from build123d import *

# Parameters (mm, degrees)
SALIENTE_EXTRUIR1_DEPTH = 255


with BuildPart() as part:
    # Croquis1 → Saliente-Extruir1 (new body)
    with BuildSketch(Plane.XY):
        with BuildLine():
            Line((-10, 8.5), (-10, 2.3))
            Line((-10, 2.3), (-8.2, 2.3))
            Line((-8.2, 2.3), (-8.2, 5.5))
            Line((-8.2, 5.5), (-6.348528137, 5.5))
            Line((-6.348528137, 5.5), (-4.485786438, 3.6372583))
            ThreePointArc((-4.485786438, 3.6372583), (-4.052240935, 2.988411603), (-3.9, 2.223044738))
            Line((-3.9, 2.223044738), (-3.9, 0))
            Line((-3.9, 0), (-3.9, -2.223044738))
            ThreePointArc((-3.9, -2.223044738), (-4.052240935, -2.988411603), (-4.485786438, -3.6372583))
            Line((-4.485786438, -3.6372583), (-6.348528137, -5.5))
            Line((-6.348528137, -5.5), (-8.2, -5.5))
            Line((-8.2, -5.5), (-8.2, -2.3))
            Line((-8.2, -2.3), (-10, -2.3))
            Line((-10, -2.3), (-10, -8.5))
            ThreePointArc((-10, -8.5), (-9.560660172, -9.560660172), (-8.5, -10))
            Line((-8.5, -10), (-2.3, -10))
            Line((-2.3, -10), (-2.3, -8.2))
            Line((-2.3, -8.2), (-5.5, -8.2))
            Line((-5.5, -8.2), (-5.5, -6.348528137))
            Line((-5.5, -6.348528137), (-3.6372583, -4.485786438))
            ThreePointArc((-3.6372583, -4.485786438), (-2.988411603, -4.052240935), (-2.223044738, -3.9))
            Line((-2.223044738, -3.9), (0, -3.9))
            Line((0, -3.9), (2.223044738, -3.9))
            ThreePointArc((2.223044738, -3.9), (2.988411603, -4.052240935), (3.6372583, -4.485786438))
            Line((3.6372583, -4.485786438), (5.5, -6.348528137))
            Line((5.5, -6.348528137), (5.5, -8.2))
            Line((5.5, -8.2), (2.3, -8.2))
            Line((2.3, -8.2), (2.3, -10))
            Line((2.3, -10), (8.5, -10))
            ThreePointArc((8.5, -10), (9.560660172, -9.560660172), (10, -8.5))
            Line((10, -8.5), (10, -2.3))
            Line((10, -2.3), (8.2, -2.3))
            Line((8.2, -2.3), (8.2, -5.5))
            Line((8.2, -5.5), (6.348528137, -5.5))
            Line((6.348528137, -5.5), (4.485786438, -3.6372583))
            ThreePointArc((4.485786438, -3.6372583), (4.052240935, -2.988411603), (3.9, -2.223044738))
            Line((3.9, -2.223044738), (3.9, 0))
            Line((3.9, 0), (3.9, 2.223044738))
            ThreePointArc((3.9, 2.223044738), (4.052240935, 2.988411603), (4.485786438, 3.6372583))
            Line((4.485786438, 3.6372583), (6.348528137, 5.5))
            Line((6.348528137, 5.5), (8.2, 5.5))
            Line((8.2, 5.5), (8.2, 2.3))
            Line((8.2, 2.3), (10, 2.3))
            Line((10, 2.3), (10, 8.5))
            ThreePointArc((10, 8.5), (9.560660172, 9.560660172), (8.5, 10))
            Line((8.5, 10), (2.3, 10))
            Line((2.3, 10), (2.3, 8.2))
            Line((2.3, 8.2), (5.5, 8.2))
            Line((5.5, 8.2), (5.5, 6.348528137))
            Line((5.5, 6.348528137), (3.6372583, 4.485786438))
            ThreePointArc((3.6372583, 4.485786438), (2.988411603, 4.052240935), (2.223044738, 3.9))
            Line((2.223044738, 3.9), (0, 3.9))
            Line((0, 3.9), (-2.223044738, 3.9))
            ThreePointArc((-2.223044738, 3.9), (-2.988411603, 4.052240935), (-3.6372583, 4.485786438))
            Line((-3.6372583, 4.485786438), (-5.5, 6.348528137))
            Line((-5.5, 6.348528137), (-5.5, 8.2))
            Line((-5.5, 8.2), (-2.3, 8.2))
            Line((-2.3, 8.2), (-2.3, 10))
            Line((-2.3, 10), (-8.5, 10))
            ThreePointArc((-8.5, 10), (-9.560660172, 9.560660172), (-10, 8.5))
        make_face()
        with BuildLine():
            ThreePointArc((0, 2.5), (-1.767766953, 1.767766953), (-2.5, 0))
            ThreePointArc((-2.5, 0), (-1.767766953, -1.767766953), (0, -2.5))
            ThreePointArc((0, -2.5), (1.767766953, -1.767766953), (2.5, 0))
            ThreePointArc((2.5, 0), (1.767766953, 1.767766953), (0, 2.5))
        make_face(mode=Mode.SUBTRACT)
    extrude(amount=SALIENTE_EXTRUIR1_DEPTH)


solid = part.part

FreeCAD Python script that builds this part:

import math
import FreeCAD as App
import Part
import Sketcher

V = App.Vector

doc = App.newDocument("Part")
body = doc.addObject("PartDesign::Body", "Body")

# Sketch on XY plane
sketch1 = doc.addObject("Sketcher::SketchObject", "Sketch")
body.addObject(sketch1)
sketch1.AttachmentSupport = (doc.XY_Plane, [""])
sketch1.MapMode = "FlatFace"
sketch1.addGeometry([
    Part.LineSegment(V(-10, 8.5, 0), V(-10, 2.3, 0)),  # 0
    Part.LineSegment(V(-10, 2.3, 0), V(-8.2, 2.3, 0)),  # 1
    Part.LineSegment(V(-8.2, 2.3, 0), V(-8.2, 5.5, 0)),  # 2
    Part.LineSegment(V(-8.2, 5.5, 0), V(-6.348528, 5.5, 0)),  # 3
    Part.LineSegment(V(-6.348528, 5.5, 0), V(-4.485786, 3.637258, 0)),  # 4
    Part.ArcOfCircle(Part.Circle(V(-5.9, 2.223045, 0), V(0, 0, 1), 2), math.radians(0), math.radians(45)),  # 5
    Part.LineSegment(V(-3.9, 2.223045, 0), V(-3.9, -2.223045, 0)),  # 6
    Part.ArcOfCircle(Part.Circle(V(-5.9, -2.223045, 0), V(0, 0, 1), 2), math.radians(-45), math.radians(0)),  # 7
    Part.LineSegment(V(-4.485786, -3.637258, 0), V(-6.348528, -5.5, 0)),  # 8
    Part.LineSegment(V(-6.348528, -5.5, 0), V(-8.2, -5.5, 0)),  # 9
    Part.LineSegment(V(-8.2, -5.5, 0), V(-8.2, -2.3, 0)),  # 10
    Part.LineSegment(V(-8.2, -2.3, 0), V(-10, -2.3, 0)),  # 11
    Part.LineSegment(V(-10, -2.3, 0), V(-10, -8.5, 0)),  # 12
    Part.ArcOfCircle(Part.Circle(V(-8.5, -8.5, 0), V(0, 0, 1), 1.5), math.radians(180), math.radians(270)),  # 13
    Part.LineSegment(V(-8.5, -10, 0), V(-2.3, -10, 0)),  # 14
    Part.LineSegment(V(-2.3, -10, 0), V(-2.3, -8.2, 0)),  # 15
    Part.LineSegment(V(-2.3, -8.2, 0), V(-5.5, -8.2, 0)),  # 16
    Part.LineSegment(V(-5.5, -8.2, 0), V(-5.5, -6.348528, 0)),  # 17
    Part.LineSegment(V(-5.5, -6.348528, 0), V(-3.637258, -4.485786, 0)),  # 18
    Part.ArcOfCircle(Part.Circle(V(-2.223045, -5.9, 0), V(0, 0, 1), 2), math.radians(90), math.radians(135)),  # 19
    Part.LineSegment(V(-2.223045, -3.9, 0), V(2.223045, -3.9, 0)),  # 20
    Part.ArcOfCircle(Part.Circle(V(2.223045, -5.9, 0), V(0, 0, 1), 2), math.radians(45), math.radians(90)),  # 21
    Part.LineSegment(V(3.637258, -4.485786, 0), V(5.5, -6.348528, 0)),  # 22
    Part.LineSegment(V(5.5, -6.348528, 0), V(5.5, -8.2, 0)),  # 23
    Part.LineSegment(V(5.5, -8.2, 0), V(2.3, -8.2, 0)),  # 24
    Part.LineSegment(V(2.3, -8.2, 0), V(2.3, -10, 0)),  # 25
    Part.LineSegment(V(2.3, -10, 0), V(8.5, -10, 0)),  # 26
    Part.ArcOfCircle(Part.Circle(V(8.5, -8.5, 0), V(0, 0, 1), 1.5), math.radians(-90), math.radians(0)),  # 27
    Part.LineSegment(V(10, -8.5, 0), V(10, -2.3, 0)),  # 28
    Part.LineSegment(V(10, -2.3, 0), V(8.2, -2.3, 0)),  # 29
    Part.LineSegment(V(8.2, -2.3, 0), V(8.2, -5.5, 0)),  # 30
    Part.LineSegment(V(8.2, -5.5, 0), V(6.348528, -5.5, 0)),  # 31
    Part.LineSegment(V(6.348528, -5.5, 0), V(4.485786, -3.637258, 0)),  # 32
    Part.ArcOfCircle(Part.Circle(V(5.9, -2.223045, 0), V(0, 0, 1), 2), math.radians(180), math.radians(225)),  # 33
    Part.LineSegment(V(3.9, -2.223045, 0), V(3.9, 2.223045, 0)),  # 34
    Part.ArcOfCircle(Part.Circle(V(5.9, 2.223045, 0), V(0, 0, 1), 2), math.radians(135), math.radians(180)),  # 35
    Part.LineSegment(V(4.485786, 3.637258, 0), V(6.348528, 5.5, 0)),  # 36
    Part.LineSegment(V(6.348528, 5.5, 0), V(8.2, 5.5, 0)),  # 37
    Part.LineSegment(V(8.2, 5.5, 0), V(8.2, 2.3, 0)),  # 38
    Part.LineSegment(V(8.2, 2.3, 0), V(10, 2.3, 0)),  # 39
    Part.LineSegment(V(10, 2.3, 0), V(10, 8.5, 0)),  # 40
    Part.ArcOfCircle(Part.Circle(V(8.5, 8.5, 0), V(0, 0, 1), 1.5), math.radians(0), math.radians(90)),  # 41
    Part.LineSegment(V(8.5, 10, 0), V(2.3, 10, 0)),  # 42
    Part.LineSegment(V(2.3, 10, 0), V(2.3, 8.2, 0)),  # 43
    Part.LineSegment(V(2.3, 8.2, 0), V(5.5, 8.2, 0)),  # 44
    Part.LineSegment(V(5.5, 8.2, 0), V(5.5, 6.348528, 0)),  # 45
    Part.LineSegment(V(5.5, 6.348528, 0), V(3.637258, 4.485786, 0)),  # 46
    Part.ArcOfCircle(Part.Circle(V(2.223045, 5.9, 0), V(0, 0, 1), 2), math.radians(-90), math.radians(-45)),  # 47
    Part.LineSegment(V(2.223045, 3.9, 0), V(-2.223045, 3.9, 0)),  # 48
    Part.ArcOfCircle(Part.Circle(V(-2.223045, 5.9, 0), V(0, 0, 1), 2), math.radians(-135), math.radians(-90)),  # 49
    Part.LineSegment(V(-3.637258, 4.485786, 0), V(-5.5, 6.348528, 0)),  # 50
    Part.LineSegment(V(-5.5, 6.348528, 0), V(-5.5, 8.2, 0)),  # 51
    Part.LineSegment(V(-5.5, 8.2, 0), V(-2.3, 8.2, 0)),  # 52
    Part.LineSegment(V(-2.3, 8.2, 0), V(-2.3, 10, 0)),  # 53
    Part.LineSegment(V(-2.3, 10, 0), V(-8.5, 10, 0)),  # 54
    Part.ArcOfCircle(Part.Circle(V(-8.5, 8.5, 0), V(0, 0, 1), 1.5), math.radians(90), math.radians(180)),  # 55
    Part.ArcOfCircle(Part.Circle(V(0, 0, 0), V(0, 0, 1), 2.5), math.radians(90), math.radians(180)),  # 56
    Part.ArcOfCircle(Part.Circle(V(0, 0, 0), V(0, 0, 1), 2.5), math.radians(0), math.radians(90)),  # 57
    Part.ArcOfCircle(Part.Circle(V(0, 0, 0), V(0, 0, 1), 2.5), math.radians(-90), math.radians(0)),  # 58
    Part.ArcOfCircle(Part.Circle(V(0, 0, 0), V(0, 0, 1), 2.5), math.radians(180), math.radians(270)),  # 59
], False)
sketch1.addConstraint([
    Sketcher.Constraint("Coincident", 0, 2, 1, 1),
    Sketcher.Constraint("Coincident", 1, 2, 2, 1),
    Sketcher.Constraint("Coincident", 2, 2, 3, 1),
    Sketcher.Constraint("Coincident", 3, 2, 4, 1),
    Sketcher.Constraint("Tangent", 4, 2, 5, 2),
    Sketcher.Constraint("Tangent", 5, 1, 6, 1),
    Sketcher.Constraint("Tangent", 6, 2, 7, 2),
    Sketcher.Constraint("Tangent", 7, 1, 8, 1),
    Sketcher.Constraint("Coincident", 8, 2, 9, 1),
    Sketcher.Constraint("Coincident", 9, 2, 10, 1),
    Sketcher.Constraint("Coincident", 10, 2, 11, 1),
    Sketcher.Constraint("Coincident", 11, 2, 12, 1),
    Sketcher.Constraint("Tangent", 12, 2, 13, 1),
    Sketcher.Constraint("Tangent", 13, 2, 14, 1),
    Sketcher.Constraint("Coincident", 14, 2, 15, 1),
    Sketcher.Constraint("Coincident", 15, 2, 16, 1),
    Sketcher.Constraint("Coincident", 16, 2, 17, 1),
    Sketcher.Constraint("Coincident", 17, 2, 18, 1),
    Sketcher.Constraint("Tangent", 18, 2, 19, 2),
    Sketcher.Constraint("Tangent", 19, 1, 20, 1),
    Sketcher.Constraint("Tangent", 20, 2, 21, 2),
    Sketcher.Constraint("Tangent", 21, 1, 22, 1),
    Sketcher.Constraint("Coincident", 22, 2, 23, 1),
    Sketcher.Constraint("Coincident", 23, 2, 24, 1),
    Sketcher.Constraint("Coincident", 24, 2, 25, 1),
    Sketcher.Constraint("Coincident", 25, 2, 26, 1),
    Sketcher.Constraint("Tangent", 26, 2, 27, 1),
    Sketcher.Constraint("Tangent", 27, 2, 28, 1),
    Sketcher.Constraint("Coincident", 28, 2, 29, 1),
    Sketcher.Constraint("Coincident", 29, 2, 30, 1),
    Sketcher.Constraint("Coincident", 30, 2, 31, 1),
    Sketcher.Constraint("Coincident", 31, 2, 32, 1),
    Sketcher.Constraint("Tangent", 32, 2, 33, 2),
    Sketcher.Constraint("Tangent", 33, 1, 34, 1),
    Sketcher.Constraint("Tangent", 34, 2, 35, 2),
    Sketcher.Constraint("Tangent", 35, 1, 36, 1),
    Sketcher.Constraint("Coincident", 36, 2, 37, 1),
    Sketcher.Constraint("Coincident", 37, 2, 38, 1),
    Sketcher.Constraint("Coincident", 38, 2, 39, 1),
    Sketcher.Constraint("Coincident", 39, 2, 40, 1),
    Sketcher.Constraint("Tangent", 40, 2, 41, 1),
    Sketcher.Constraint("Tangent", 41, 2, 42, 1),
    Sketcher.Constraint("Coincident", 42, 2, 43, 1),
    Sketcher.Constraint("Coincident", 43, 2, 44, 1),
    Sketcher.Constraint("Coincident", 44, 2, 45, 1),
    Sketcher.Constraint("Coincident", 45, 2, 46, 1),
    Sketcher.Constraint("Tangent", 46, 2, 47, 2),
    Sketcher.Constraint("Tangent", 47, 1, 48, 1),
    Sketcher.Constraint("Tangent", 48, 2, 49, 2),
    Sketcher.Constraint("Tangent", 49, 1, 50, 1),
    Sketcher.Constraint("Coincident", 50, 2, 51, 1),
    Sketcher.Constraint("Coincident", 51, 2, 52, 1),
    Sketcher.Constraint("Coincident", 52, 2, 53, 1),
    Sketcher.Constraint("Coincident", 53, 2, 54, 1),
    Sketcher.Constraint("Tangent", 54, 2, 55, 1),
    Sketcher.Constraint("Tangent", 55, 2, 0, 1),
    Sketcher.Constraint("Tangent", 56, 1, 57, 2),
    Sketcher.Constraint("Tangent", 57, 1, 58, 2),
    Sketcher.Constraint("Tangent", 58, 1, 59, 2),
    Sketcher.Constraint("Tangent", 59, 1, 56, 2),
    Sketcher.Constraint("Vertical", 0),
    Sketcher.Constraint("Horizontal", 1),
    Sketcher.Constraint("Vertical", 2),
    Sketcher.Constraint("Horizontal", 3),
    Sketcher.Constraint("Vertical", 6),
    Sketcher.Constraint("Horizontal", 9),
    Sketcher.Constraint("Vertical", 10),
    Sketcher.Constraint("Horizontal", 11),
    Sketcher.Constraint("Vertical", 12),
    Sketcher.Constraint("Horizontal", 14),
    Sketcher.Constraint("Vertical", 15),
    Sketcher.Constraint("Horizontal", 16),
    Sketcher.Constraint("Vertical", 17),
    Sketcher.Constraint("Horizontal", 20),
    Sketcher.Constraint("Vertical", 23),
    Sketcher.Constraint("Horizontal", 24),
    Sketcher.Constraint("Vertical", 25),
    Sketcher.Constraint("Horizontal", 26),
    Sketcher.Constraint("Vertical", 28),
    Sketcher.Constraint("Horizontal", 29),
    Sketcher.Constraint("Vertical", 30),
    Sketcher.Constraint("Horizontal", 31),
    Sketcher.Constraint("Vertical", 34),
    Sketcher.Constraint("Horizontal", 37),
    Sketcher.Constraint("Vertical", 38),
    Sketcher.Constraint("Horizontal", 39),
    Sketcher.Constraint("Vertical", 40),
    Sketcher.Constraint("Horizontal", 42),
    Sketcher.Constraint("Vertical", 43),
    Sketcher.Constraint("Horizontal", 44),
    Sketcher.Constraint("Vertical", 45),
    Sketcher.Constraint("Horizontal", 48),
    Sketcher.Constraint("Vertical", 51),
    Sketcher.Constraint("Horizontal", 52),
    Sketcher.Constraint("Vertical", 53),
    Sketcher.Constraint("Horizontal", 54),
    Sketcher.Constraint("Coincident", 56, 3, -1, 1),
    Sketcher.Constraint("Equal", 5, 7),
    Sketcher.Constraint("Equal", 7, 19),
    Sketcher.Constraint("Equal", 19, 21),
    Sketcher.Constraint("Equal", 13, 27),
    Sketcher.Constraint("Equal", 21, 33),
    Sketcher.Constraint("Equal", 33, 35),
    Sketcher.Constraint("Equal", 27, 41),
    Sketcher.Constraint("Equal", 35, 47),
    Sketcher.Constraint("Equal", 47, 49),
    Sketcher.Constraint("Equal", 41, 55),
    Sketcher.Constraint("Equal", 56, 57),
    Sketcher.Constraint("Symmetric", 5, 3, 33, 3, -1, 1),
    Sketcher.Constraint("Symmetric", 13, 3, 41, 3, -1, 1),
    Sketcher.Constraint("Symmetric", 19, 3, 47, 3, -1, 1),
    Sketcher.Constraint("Symmetric", 27, 3, 55, 3, -1, 1),
    Sketcher.Constraint("Symmetric", 1, 2, 29, 2, -1, 1),
    Sketcher.Constraint("Symmetric", 3, 2, 31, 2, -1, 1),
    Sketcher.Constraint("Symmetric", 7, 1, 35, 1, -1, 1),
    Sketcher.Constraint("Symmetric", 9, 2, 37, 2, -1, 1),
    Sketcher.Constraint("Symmetric", 15, 2, 43, 2, -1, 1),
    Sketcher.Constraint("Symmetric", 17, 2, 45, 2, -1, 1),
    Sketcher.Constraint("Symmetric", 21, 1, 49, 1, -1, 1),
    Sketcher.Constraint("Symmetric", 23, 2, 51, 2, -1, 1),
    Sketcher.Constraint("Symmetric", 13, 3, 27, 3, -2),
    Sketcher.Constraint("Symmetric", 18, 2, 21, 1, -2),
    Sketcher.Constraint("Symmetric", 16, 2, 23, 2, -2),
    Sketcher.Constraint("Symmetric", 10, 2, 29, 2, -2),
    Sketcher.Constraint("Symmetric", 8, 2, 31, 2, -2),
    Sketcher.Constraint("PointOnObject", 56, 1, -2),
    Sketcher.Constraint("PointOnObject", 57, 1, -1),
    Sketcher.Constraint("PointOnObject", 58, 1, -2),
    Sketcher.Constraint("PointOnObject", 59, 1, -1),
    Sketcher.Constraint("Perpendicular", 4, 8),
    Sketcher.Constraint("Parallel", 8, 18),
    Sketcher.Constraint("Perpendicular", 18, 22),
    Sketcher.Constraint("Horizontal", 1, 2, 38, 2),
    Sketcher.Constraint("Vertical", 25, 2, 42, 2),
    Sketcher.Constraint("Vertical", 15, 2, 52, 2),
    Sketcher.Constraint("Equal", 54, 0),
    Sketcher.Constraint("Equal", 52, 2),
    Sketcher.Constraint("Equal", 48, 6),
    Sketcher.Constraint("Equal", 39, 15),
    Sketcher.Constraint("Equal", 37, 17),
    Sketcher.Constraint("Equal", 8, 18),
    Sketcher.Constraint("Radius", 5, 2.0),
    Sketcher.Constraint("Radius", 13, 1.5),
    Sketcher.Constraint("Radius", 56, 2.5),
    Sketcher.Constraint("DistanceX", 1, 1, 1, 2, 1.8),
    Sketcher.Constraint("DistanceX", 14, 1, 14, 2, 6.2),
    Sketcher.Constraint("DistanceX", 16, 2, 16, 1, 3.2),
    Sketcher.Constraint("DistanceX", 0, 2, -1, 1, 10.0),
    Sketcher.Constraint("DistanceX", 5, 3, -1, 1, 5.9),
    Sketcher.Constraint("DistanceX", 3, 1, 3, 2, 1.851472),
])
pad1 = doc.addObject("PartDesign::Pad", "Pad")
body.addObject(pad1)
pad1.Profile = sketch1
pad1.Length = 255

doc.recompute()
